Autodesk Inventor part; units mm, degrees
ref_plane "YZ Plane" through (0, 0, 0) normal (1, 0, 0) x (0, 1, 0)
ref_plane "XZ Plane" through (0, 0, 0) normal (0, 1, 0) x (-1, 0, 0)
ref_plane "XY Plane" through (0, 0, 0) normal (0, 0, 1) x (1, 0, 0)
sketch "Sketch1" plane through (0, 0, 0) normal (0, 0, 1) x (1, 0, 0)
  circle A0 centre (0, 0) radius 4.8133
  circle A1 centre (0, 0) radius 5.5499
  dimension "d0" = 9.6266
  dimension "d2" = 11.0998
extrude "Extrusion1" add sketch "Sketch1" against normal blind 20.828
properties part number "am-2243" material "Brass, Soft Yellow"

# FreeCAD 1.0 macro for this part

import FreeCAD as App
import Part
import Sketcher
Q = App.Units.Quantity

doc = App.newDocument("Part")
params = doc.addObject("Spreadsheet::Sheet", "Params")
for row, (alias, value) in enumerate([
    ("sketch1_diameter", "0.437 in"),
    ("sketch1_diameter2", "0.379 in"),
    ("pad1_length", "0.82 in"),
], start=1):
    params.set(f"A{row}", alias)
    params.set(f"B{row}", "=" + value)
    params.setAlias(f"B{row}", alias)

body = doc.addObject("PartDesign::Body", "Body")

# Sketch on XY plane
sketch1 = doc.addObject("Sketcher::SketchObject", "Sketch")
body.addObject(sketch1)
sketch1.AttachmentSupport = (doc.XY_Plane, [""])
sketch1.MapMode = "FlatFace"
sketch1.addGeometry([
    Part.Circle(App.Vector(0, 0, 0), App.Vector(0, 0, 1), 5.5499),
    Part.Circle(App.Vector(0, 0, 0), App.Vector(0, 0, 1), 4.8133),
], False)
sketch1.addConstraint([
    Sketcher.Constraint("Coincident", 0, 3, -1, 1),
    Sketcher.Constraint("Coincident", 1, 3, -1, 1),
    Sketcher.Constraint("Diameter", 0, Q("0.437 in")),
    Sketcher.Constraint("Diameter", 1, Q("0.379 in")),
])
sketch1.setExpression("Constraints[2]", "Params.sketch1_diameter")
sketch1.setExpression("Constraints[3]", "Params.sketch1_diameter2")
pad1 = doc.addObject("PartDesign::Pad", "Pad")
body.addObject(pad1)
pad1.Profile = sketch1
pad1.setExpression("Length", "Params.pad1_length")
pad1.Reversed = True

doc.recompute()
